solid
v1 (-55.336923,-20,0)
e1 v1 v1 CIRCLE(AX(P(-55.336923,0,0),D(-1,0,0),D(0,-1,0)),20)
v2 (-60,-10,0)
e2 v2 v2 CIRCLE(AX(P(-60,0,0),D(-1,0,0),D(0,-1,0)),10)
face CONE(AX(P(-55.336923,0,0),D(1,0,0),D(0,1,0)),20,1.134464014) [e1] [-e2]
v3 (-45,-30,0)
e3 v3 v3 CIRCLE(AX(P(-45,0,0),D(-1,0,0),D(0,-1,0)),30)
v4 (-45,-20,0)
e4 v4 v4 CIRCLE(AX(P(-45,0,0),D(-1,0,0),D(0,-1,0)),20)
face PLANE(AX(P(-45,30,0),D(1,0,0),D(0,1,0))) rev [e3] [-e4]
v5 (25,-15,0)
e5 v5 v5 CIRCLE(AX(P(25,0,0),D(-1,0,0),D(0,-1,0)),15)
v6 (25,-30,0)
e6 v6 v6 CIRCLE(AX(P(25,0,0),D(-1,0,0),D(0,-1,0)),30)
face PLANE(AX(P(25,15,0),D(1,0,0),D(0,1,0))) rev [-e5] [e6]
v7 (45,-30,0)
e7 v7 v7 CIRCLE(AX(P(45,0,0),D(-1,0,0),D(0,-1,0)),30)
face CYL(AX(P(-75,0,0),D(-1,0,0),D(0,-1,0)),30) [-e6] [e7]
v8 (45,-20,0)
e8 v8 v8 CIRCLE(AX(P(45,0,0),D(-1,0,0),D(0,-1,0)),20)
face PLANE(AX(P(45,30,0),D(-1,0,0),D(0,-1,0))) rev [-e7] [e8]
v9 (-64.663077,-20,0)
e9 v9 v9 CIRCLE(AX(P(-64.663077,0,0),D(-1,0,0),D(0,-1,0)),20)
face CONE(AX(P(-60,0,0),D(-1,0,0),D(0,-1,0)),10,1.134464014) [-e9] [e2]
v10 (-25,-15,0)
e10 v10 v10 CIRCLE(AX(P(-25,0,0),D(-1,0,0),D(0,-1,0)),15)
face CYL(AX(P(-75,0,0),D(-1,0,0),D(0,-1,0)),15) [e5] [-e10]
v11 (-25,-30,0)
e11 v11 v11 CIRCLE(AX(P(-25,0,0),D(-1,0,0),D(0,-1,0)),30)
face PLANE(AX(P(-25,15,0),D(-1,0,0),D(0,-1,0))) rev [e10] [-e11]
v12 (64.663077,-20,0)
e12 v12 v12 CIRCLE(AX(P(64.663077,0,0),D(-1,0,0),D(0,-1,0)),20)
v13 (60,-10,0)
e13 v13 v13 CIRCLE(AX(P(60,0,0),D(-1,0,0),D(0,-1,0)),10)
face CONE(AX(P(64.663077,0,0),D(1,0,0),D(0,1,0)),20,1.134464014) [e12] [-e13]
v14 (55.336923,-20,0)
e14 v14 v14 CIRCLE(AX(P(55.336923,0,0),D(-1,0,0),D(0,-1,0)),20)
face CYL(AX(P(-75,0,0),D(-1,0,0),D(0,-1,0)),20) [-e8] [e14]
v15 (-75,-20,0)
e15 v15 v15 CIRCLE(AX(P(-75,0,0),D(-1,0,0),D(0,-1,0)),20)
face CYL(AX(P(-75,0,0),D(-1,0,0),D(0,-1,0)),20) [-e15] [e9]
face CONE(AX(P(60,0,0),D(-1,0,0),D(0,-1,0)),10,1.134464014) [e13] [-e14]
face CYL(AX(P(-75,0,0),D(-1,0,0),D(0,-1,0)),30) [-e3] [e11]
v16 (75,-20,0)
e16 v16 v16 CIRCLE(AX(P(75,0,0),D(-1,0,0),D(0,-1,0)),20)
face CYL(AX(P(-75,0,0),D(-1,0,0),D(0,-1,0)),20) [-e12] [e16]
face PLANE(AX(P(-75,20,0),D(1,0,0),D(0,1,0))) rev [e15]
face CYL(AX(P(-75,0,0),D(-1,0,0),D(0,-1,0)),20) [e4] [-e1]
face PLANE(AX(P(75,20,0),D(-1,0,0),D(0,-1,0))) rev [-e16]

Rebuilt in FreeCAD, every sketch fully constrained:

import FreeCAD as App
import Part
import Sketcher
Q = App.Units.Quantity


def add_polygon(sketch, points):
    """Adds a closed chain of lines whose ends are joined by coincident constraints."""
    first, n = sketch.GeometryCount, len(points)
    for a, b in zip(points, points[1:] + points[:1]):
        sketch.addGeometry(Part.LineSegment(App.Vector(*a, 0), App.Vector(*b, 0)), False)
    for i in range(n):
        sketch.addConstraint(Sketcher.Constraint("Coincident", first + i, 2, first + (i + 1) % n, 1))

doc = App.newDocument("Part")
body = doc.addObject("PartDesign::Body", "Body")

# Sketch on XY plane
sketch1 = body.newObject("Sketcher::SketchObject", "Sketch")
sketch1.AttachmentSupport = (doc.getObject("XY_Plane"), [""])
sketch1.MapMode = "FlatFace"
add_polygon(sketch1, [(25, 15), (-25, 15), (-25, 30), (-45, 30), (-45, 20), (-55, 20), (-60, 10), (-65, 20), (-75, 20), (-75, 0), (75, 0), (75, 20), (65, 20), (60, 10), (55, 20), (45, 20), (45, 30), (25, 30)])  # lines 0-17
sketch1.addConstraint([
    Sketcher.Constraint("Horizontal", 0),
    Sketcher.Constraint("Vertical", 1),
    Sketcher.Constraint("Horizontal", 2),
    Sketcher.Constraint("Vertical", 3),
    Sketcher.Constraint("Horizontal", 4),
    Sketcher.Constraint("Horizontal", 7),
    Sketcher.Constraint("Vertical", 8),
    Sketcher.Constraint("Horizontal", 9),
    Sketcher.Constraint("Vertical", 10),
    Sketcher.Constraint("Horizontal", 11),
    Sketcher.Constraint("Horizontal", 14),
    Sketcher.Constraint("Vertical", 15),
    Sketcher.Constraint("Horizontal", 16),
    Sketcher.Constraint("Vertical", 17),
    Sketcher.Constraint("Symmetric", 8, 2, 9, 2, -1, 1),
    Sketcher.Constraint("Symmetric", 6, 2, 11, 2, -2),
    Sketcher.Constraint("Symmetric", 5, 2, 12, 2, -2),
    Sketcher.Constraint("Symmetric", 4, 2, 13, 2, -2),
    Sketcher.Constraint("Symmetric", 2, 2, 15, 2, -2),
    Sketcher.Constraint("Parallel", 5, 12),
    Sketcher.Constraint("Horizontal", 4, 2, 6, 2),
    Sketcher.Constraint("Equal", 4, 7),
    Sketcher.Constraint("Equal", 2, 16),
    Sketcher.Constraint("Equal", 16, 8),
    Sketcher.Constraint("DistanceX", 0, 2, 0, 1, Q("50 mm")),
    Sketcher.Constraint("DistanceX", 2, 2, 2, 1, Q("20 mm")),
    Sketcher.Constraint("DistanceX", 9, 1, 9, 2, Q("150 mm")),
    Sketcher.Constraint("DistanceY", 1, 1, 1, 2, Q("15 mm")),
    Sketcher.Constraint("DistanceY", 3, 2, 3, 1, Q("10 mm")),
    Sketcher.Constraint("Angle", 5, Q("-115 deg")),
    Sketcher.Constraint("DistanceY", -1, 1, 5, 2, Q("10 mm")),
])
revolution = body.newObject("PartDesign::Revolution", "Revolution")
revolution.Profile = sketch1
revolution.ReferenceAxis = (sketch1, ["H_Axis"])
revolution.Angle = 360

doc.recompute()
